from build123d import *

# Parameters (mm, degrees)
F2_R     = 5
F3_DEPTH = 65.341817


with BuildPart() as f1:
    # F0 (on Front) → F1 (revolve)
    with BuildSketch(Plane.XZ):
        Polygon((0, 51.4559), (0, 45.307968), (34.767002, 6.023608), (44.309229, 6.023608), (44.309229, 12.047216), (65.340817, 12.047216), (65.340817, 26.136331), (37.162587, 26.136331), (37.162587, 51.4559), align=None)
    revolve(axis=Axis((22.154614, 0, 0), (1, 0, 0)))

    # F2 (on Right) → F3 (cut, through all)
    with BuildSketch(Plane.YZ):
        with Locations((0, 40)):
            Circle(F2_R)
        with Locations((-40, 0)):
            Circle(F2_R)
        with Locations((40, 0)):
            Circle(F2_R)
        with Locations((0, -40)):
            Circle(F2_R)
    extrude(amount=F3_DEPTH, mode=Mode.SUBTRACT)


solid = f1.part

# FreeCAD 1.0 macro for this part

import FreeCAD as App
import Part
import Sketcher

V = App.Vector


def add_polygon(sketch, points):
    """Adds a closed chain of lines whose ends are joined by coincident constraints."""
    first, n = sketch.GeometryCount, len(points)
    for a, b in zip(points, points[1:] + points[:1]):
        sketch.addGeometry(Part.LineSegment(App.Vector(*a, 0), App.Vector(*b, 0)), False)
    for i in range(n):
        sketch.addConstraint(Sketcher.Constraint("Coincident", first + i, 2, first + (i + 1) % n, 1))

doc = App.newDocument("Part")
body = doc.addObject("PartDesign::Body", "Body")

# Sketch on XZ plane
sketch1 = doc.addObject("Sketcher::SketchObject", "Sketch")
body.addObject(sketch1)
sketch1.AttachmentSupport = (doc.XZ_Plane, [""])
sketch1.MapMode = "FlatFace"
add_polygon(sketch1, [(0, 51), (0, 45), (35, 6), (44, 6), (44, 12), (65, 12), (65, 26), (37, 26), (37, 51)])  # lines 0-8
sketch1.addConstraint([
    Sketcher.Constraint("Vertical", 0),
    Sketcher.Constraint("Horizontal", 2),
    Sketcher.Constraint("Vertical", 3),
    Sketcher.Constraint("Horizontal", 4),
    Sketcher.Constraint("Vertical", 5),
    Sketcher.Constraint("Horizontal", 6),
    Sketcher.Constraint("Vertical", 7),
    Sketcher.Constraint("Horizontal", 8),
    Sketcher.Constraint("PointOnObject", 0, 2, -2),
    Sketcher.Constraint("DistanceX", -1, 1, 1, 2, 34.767002),
    Sketcher.Constraint("DistanceX", 6, 2, 6, 1, 28.17823),
    Sketcher.Constraint("DistanceY", 0, 2, 0, 1, 6.147932),
    Sketcher.Constraint("DistanceY", 3, 1, 3, 2, 6.023608),
    Sketcher.Constraint("DistanceY", 7, 1, 7, 2, 25.319569),
    Sketcher.Constraint("DistanceY", -1, 1, 7, 2, 51.4559),
    Sketcher.Constraint("Distance", 1, 52.459559),
    Sketcher.Constraint("DistanceX", 2, 1, 2, 2, 9.542227),
    Sketcher.Constraint("DistanceX", 4, 1, 4, 2, 21.031588),
])
revolution = doc.addObject("PartDesign::Revolution", "Revolution")
body.addObject(revolution)
revolution.Profile = sketch1
revolution.ReferenceAxis = (sketch1, ["H_Axis"])
revolution.Angle = 360

# Sketch on YZ plane
sketch2 = doc.addObject("Sketcher::SketchObject", "Sketch001")
body.addObject(sketch2)
sketch2.AttachmentSupport = (doc.YZ_Plane, [""])
sketch2.MapMode = "FlatFace"
sketch2.addGeometry([
    Part.Circle(V(0, 40, 0), V(0, 0, 1), 5),
    Part.Circle(V(-40, 0, 0), V(0, 0, 1), 5),
    Part.Circle(V(40, 0, 0), V(0, 0, 1), 5),
    Part.Circle(V(0, -40, 0), V(0, 0, 1), 5),
], False)
sketch2.addConstraint([
    Sketcher.Constraint("Equal", 0, 1),
    Sketcher.Constraint("Equal", 1, 2),
    Sketcher.Constraint("Equal", 2, 3),
    Sketcher.Constraint("Symmetric", 1, 3, 2, 3, -1, 1),
    Sketcher.Constraint("Symmetric", 0, 3, 3, 3, -1, 1),
    Sketcher.Constraint("PointOnObject", 0, 3, -2),
    Sketcher.Constraint("PointOnObject", 1, 3, -1),
    Sketcher.Constraint("Diameter", 0, 10.0),
    Sketcher.Constraint("DistanceY", -1, 1, 0, 3, 40.0),
    Sketcher.Constraint("DistanceX", 1, 3, -1, 1, 40.0),
])
pocket1 = doc.addObject("PartDesign::Pocket", "Pocket")
body.addObject(pocket1)
pocket1.Profile = sketch2
pocket1.Type = "ThroughAll"
pocket1.Reversed = True

doc.recompute()
